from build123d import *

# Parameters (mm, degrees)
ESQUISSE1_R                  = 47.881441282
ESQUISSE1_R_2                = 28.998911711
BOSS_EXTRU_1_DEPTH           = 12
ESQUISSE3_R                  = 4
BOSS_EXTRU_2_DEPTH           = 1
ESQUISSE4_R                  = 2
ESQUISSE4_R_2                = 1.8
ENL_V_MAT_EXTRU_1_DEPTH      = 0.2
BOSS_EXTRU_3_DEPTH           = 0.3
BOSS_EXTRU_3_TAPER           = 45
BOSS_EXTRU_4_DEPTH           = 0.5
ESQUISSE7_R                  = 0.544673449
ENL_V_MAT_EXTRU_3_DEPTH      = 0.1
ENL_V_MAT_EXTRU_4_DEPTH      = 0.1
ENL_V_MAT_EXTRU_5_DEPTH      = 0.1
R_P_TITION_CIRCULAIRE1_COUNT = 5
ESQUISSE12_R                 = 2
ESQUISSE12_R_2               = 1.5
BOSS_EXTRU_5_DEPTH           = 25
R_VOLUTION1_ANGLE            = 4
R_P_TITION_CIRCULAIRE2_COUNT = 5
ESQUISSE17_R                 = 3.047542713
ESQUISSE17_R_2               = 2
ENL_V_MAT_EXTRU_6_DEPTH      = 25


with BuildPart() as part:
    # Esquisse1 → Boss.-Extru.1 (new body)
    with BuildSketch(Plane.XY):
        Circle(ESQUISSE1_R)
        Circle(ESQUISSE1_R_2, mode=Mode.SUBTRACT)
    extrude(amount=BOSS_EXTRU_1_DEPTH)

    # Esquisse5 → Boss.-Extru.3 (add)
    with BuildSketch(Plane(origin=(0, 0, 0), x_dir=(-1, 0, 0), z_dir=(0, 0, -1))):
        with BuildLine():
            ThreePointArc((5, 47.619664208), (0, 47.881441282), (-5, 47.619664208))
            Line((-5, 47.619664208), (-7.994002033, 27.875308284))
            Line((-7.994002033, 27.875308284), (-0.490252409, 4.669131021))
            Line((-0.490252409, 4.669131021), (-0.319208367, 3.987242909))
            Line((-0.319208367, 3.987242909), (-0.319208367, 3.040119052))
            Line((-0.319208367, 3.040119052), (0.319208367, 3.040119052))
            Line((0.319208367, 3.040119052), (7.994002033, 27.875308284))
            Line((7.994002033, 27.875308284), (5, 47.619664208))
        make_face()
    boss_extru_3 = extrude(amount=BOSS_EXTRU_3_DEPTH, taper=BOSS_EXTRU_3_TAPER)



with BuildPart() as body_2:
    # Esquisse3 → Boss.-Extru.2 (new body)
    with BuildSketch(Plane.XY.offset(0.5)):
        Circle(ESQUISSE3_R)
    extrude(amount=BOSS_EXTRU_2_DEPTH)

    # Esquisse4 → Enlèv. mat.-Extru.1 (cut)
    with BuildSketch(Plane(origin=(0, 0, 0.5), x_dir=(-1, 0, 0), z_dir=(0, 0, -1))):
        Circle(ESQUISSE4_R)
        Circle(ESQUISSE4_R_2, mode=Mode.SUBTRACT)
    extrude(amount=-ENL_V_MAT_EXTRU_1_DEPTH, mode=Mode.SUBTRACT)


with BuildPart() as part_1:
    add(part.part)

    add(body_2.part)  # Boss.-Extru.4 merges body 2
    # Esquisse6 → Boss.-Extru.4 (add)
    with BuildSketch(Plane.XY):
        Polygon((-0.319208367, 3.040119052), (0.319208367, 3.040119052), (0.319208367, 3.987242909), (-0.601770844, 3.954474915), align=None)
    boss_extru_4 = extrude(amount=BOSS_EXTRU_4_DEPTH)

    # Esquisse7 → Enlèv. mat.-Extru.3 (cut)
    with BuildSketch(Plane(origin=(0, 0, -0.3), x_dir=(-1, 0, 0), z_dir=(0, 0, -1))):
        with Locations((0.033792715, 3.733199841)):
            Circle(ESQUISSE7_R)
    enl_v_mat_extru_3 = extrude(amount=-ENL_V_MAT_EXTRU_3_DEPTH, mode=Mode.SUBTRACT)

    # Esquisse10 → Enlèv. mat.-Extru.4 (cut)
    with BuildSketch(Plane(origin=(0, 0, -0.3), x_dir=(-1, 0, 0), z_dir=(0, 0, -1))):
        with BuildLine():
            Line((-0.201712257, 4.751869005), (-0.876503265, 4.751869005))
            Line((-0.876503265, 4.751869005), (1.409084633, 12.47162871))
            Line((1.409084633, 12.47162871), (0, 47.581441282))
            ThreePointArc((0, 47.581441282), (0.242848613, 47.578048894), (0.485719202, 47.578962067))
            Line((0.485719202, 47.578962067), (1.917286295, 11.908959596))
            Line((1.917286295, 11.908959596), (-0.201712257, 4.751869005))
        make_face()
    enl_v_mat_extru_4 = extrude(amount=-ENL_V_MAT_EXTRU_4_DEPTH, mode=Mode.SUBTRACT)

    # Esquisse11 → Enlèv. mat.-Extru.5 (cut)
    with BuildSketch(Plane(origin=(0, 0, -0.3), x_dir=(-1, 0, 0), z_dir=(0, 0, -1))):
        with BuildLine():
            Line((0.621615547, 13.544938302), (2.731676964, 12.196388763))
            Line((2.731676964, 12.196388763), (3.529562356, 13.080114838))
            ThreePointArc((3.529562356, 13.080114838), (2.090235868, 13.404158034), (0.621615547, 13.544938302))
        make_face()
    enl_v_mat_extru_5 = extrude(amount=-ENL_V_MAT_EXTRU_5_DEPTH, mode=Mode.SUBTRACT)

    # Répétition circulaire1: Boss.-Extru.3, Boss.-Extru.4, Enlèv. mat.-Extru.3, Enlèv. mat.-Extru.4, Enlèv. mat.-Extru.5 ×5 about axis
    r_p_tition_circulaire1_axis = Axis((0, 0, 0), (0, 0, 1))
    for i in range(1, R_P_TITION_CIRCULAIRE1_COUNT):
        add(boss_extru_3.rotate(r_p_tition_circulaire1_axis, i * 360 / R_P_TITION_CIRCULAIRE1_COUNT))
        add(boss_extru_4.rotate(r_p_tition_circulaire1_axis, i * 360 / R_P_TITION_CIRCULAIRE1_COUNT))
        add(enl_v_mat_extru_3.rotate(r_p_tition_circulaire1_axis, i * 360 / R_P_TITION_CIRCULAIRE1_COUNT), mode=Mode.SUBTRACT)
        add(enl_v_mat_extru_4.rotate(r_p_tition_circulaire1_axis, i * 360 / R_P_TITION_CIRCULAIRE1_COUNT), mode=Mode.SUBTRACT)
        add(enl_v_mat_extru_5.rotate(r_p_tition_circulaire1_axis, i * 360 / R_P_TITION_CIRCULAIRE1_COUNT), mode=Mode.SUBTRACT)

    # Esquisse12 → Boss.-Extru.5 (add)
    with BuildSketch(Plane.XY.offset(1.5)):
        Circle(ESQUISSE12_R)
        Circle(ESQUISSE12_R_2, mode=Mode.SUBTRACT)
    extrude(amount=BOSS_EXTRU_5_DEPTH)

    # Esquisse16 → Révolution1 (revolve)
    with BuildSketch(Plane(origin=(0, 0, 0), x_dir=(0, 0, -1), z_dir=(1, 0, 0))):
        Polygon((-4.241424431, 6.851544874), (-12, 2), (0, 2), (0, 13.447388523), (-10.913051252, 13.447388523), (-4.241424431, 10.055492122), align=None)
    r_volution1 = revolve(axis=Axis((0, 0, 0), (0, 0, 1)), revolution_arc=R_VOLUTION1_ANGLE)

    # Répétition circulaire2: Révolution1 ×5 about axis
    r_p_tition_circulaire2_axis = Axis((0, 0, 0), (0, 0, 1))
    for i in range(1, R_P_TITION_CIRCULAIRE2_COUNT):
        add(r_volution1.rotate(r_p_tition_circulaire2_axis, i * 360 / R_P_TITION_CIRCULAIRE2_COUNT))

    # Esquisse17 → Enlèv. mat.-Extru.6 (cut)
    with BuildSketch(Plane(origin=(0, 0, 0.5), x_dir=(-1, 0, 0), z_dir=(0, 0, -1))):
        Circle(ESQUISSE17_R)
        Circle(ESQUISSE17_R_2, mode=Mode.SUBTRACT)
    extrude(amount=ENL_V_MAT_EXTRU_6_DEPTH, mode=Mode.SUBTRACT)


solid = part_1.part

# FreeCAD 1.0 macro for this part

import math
import FreeCAD as App
import Part
import Sketcher
Q = App.Units.Quantity

doc = App.newDocument("Part")
body = doc.addObject("PartDesign::Body", "Body")

# Sketch on XY plane
sketch1 = doc.addObject("Sketcher::SketchObject", "Sketch")
body.addObject(sketch1)
sketch1.AttachmentSupport = (doc.XY_Plane, [""])
sketch1.MapMode = "FlatFace"
sketch1.addGeometry(Part.Circle(App.Vector(0, 0, 0), App.Vector(0, 0, 1), 47.881441), False)
sketch1.addGeometry(Part.Circle(App.Vector(0, 0, 0), App.Vector(0, 0, 1), 28.998912), False)
sketch1.addConstraint(Sketcher.Constraint("Coincident", 0, 3, -1, 1))
sketch1.addConstraint(Sketcher.Constraint("Coincident", 1, 3, -1, 1))
sketch1.addConstraint(Sketcher.Constraint("Diameter", 0, Q("95.762883 mm")))
sketch1.addConstraint(Sketcher.Constraint("Diameter", 1, Q("57.997823 mm")))
pad1 = doc.addObject("PartDesign::Pad", "Pad")
body.addObject(pad1)
pad1.Profile = sketch1
pad1.Length = 12

# Sketch on XY plane
sketch2 = doc.addObject("Sketcher::SketchObject", "Sketch001")
body.addObject(sketch2)
sketch2.AttachmentSupport = (doc.XY_Plane, [""])
sketch2.MapMode = "FlatFace"
sketch2.addGeometry(Part.ArcOfCircle(Part.Circle(App.Vector(0, 0, 0), App.Vector(0, 0, 1), 47.881441), math.radians(84.005984), math.radians(95.994016)), False)
sketch2.addGeometry(Part.LineSegment(App.Vector(5, 47.619664, 0), App.Vector(7.994002, 27.875308, 0)), False)
sketch2.addGeometry(Part.LineSegment(App.Vector(7.994002, 27.875308, 0), App.Vector(0.490252, 4.669131, 0)), False)
sketch2.addGeometry(Part.LineSegment(App.Vector(0.490252, 4.669131, 0), App.Vector(0.319208, 3.987243, 0)), False)
sketch2.addGeometry(Part.LineSegment(App.Vector(0.319208, 3.987243, 0), App.Vector(0.319208, 3.040119, 0)), False)
sketch2.addGeometry(Part.LineSegment(App.Vector(0.319208, 3.040119, 0), App.Vector(-0.319208, 3.040119, 0)), False)
sketch2.addGeometry(Part.LineSegment(App.Vector(-0.319208, 3.040119, 0), App.Vector(-7.994002, 27.875308, 0)), False)
sketch2.addGeometry(Part.LineSegment(App.Vector(-7.994002, 27.875308, 0), App.Vector(-5, 47.619664, 0)), False)
sketch2.addConstraint(Sketcher.Constraint("Coincident", 0, 1, 1, 1))
sketch2.addConstraint(Sketcher.Constraint("Coincident", 1, 2, 2, 1))
sketch2.addConstraint(Sketcher.Constraint("Coincident", 2, 2, 3, 1))
sketch2.addConstraint(Sketcher.Constraint("Coincident", 3, 2, 4, 1))
sketch2.addConstraint(Sketcher.Constraint("Coincident", 4, 2, 5, 1))
sketch2.addConstraint(Sketcher.Constraint("Coincident", 5, 2, 6, 1))
sketch2.addConstraint(Sketcher.Constraint("Coincident", 6, 2, 7, 1))
sketch2.addConstraint(Sketcher.Constraint("Coincident", 7, 2, 0, 2))
sketch2.addConstraint(Sketcher.Constraint("Vertical", 4))
sketch2.addConstraint(Sketcher.Constraint("Horizontal", 5))
sketch2.addConstraint(Sketcher.Constraint("Coincident", 0, 3, -1, 1))
sketch2.addConstraint(Sketcher.Constraint("Symmetric", 1, 2, 6, 2, -2))
sketch2.addConstraint(Sketcher.Constraint("Horizontal", 0, 1, 7, 2))
sketch2.addConstraint(Sketcher.Constraint("DistanceX", -1, 1, 0, 1, Q("5 mm")))
sketch2.addConstraint(Sketcher.Constraint("Radius", 0, Q("47.881441 mm")))
sketch2.addConstraint(Sketcher.Constraint("Distance", 1, Q("19.970069 mm")))
sketch2.addConstraint(Sketcher.Constraint("Distance", 6, Q("25.99402 mm")))
sketch2.addConstraint(Sketcher.Constraint("DistanceX", 5, 2, 5, 1, Q("0.638417 mm")))
sketch2.addConstraint(Sketcher.Constraint("DistanceY", 4, 2, 4, 1, Q("0.947124 mm")))
sketch2.addConstraint(Sketcher.Constraint("DistanceY", -1, 1, 1, 2, Q("27.875308 mm")))
sketch2.addConstraint(Sketcher.Constraint("DistanceY", -1, 1, 2, 2, Q("4.669131 mm")))
sketch2.addConstraint(Sketcher.Constraint("DistanceX", -1, 1, 3, 2, Q("0.319208 mm")))
sketch2.addConstraint(Sketcher.Constraint("DistanceX", 2, 2, 1, 2, Q("7.50375 mm")))
pad2 = doc.addObject("PartDesign::Pad", "Pad001")
body.addObject(pad2)
pad2.Profile = sketch2
pad2.Length = 0.3
pad2.Reversed = True
pad2.TaperAngle = -45
body2 = doc.addObject("PartDesign::Body", "Body001")

# Sketch on XY plane
sketch3 = doc.addObject("Sketcher::SketchObject", "Sketch002")
body2.addObject(sketch3)
sketch3.AttachmentSupport = (doc.getObject("XY_Plane001"), [""])
sketch3.MapMode = "FlatFace"
sketch3.AttachmentOffset = App.Placement(App.Vector(0, 0, 0.5), App.Rotation())
sketch3.addGeometry(Part.Circle(App.Vector(0, 0, 0), App.Vector(0, 0, 1), 4), False)
sketch3.addConstraint(Sketcher.Constraint("Coincident", 0, 3, -1, 1))
sketch3.addConstraint(Sketcher.Constraint("Diameter", 0, Q("8 mm")))
pad3 = doc.addObject("PartDesign::Pad", "Pad002")
body2.addObject(pad3)
pad3.Profile = sketch3
pad3.Length = 1

# Sketch on XY plane
sketch4 = doc.addObject("Sketcher::SketchObject", "Sketch003")
body2.addObject(sketch4)
sketch4.AttachmentSupport = (doc.getObject("XY_Plane001"), [""])
sketch4.MapMode = "FlatFace"
sketch4.AttachmentOffset = App.Placement(App.Vector(0, 0, 0.5), App.Rotation())
sketch4.addGeometry(Part.Circle(App.Vector(0, 0, 0), App.Vector(0, 0, 1), 2), False)
sketch4.addGeometry(Part.Circle(App.Vector(0, 0, 0), App.Vector(0, 0, 1), 1.8), False)
sketch4.addConstraint(Sketcher.Constraint("Coincident", 0, 3, -1, 1))
sketch4.addConstraint(Sketcher.Constraint("Coincident", 1, 3, -1, 1))
sketch4.addConstraint(Sketcher.Constraint("Diameter", 0, Q("4 mm")))
sketch4.addConstraint(Sketcher.Constraint("Diameter", 1, Q("3.6 mm")))
pocket1 = doc.addObject("PartDesign::Pocket", "Pocket")
body2.addObject(pocket1)
pocket1.Profile = sketch4
pocket1.Length = 0.2
pocket1.Reversed = True
body.AllowCompound = True
doc.recompute()

boolean = doc.addObject("PartDesign::Boolean", "Boolean")
body.addObject(boolean)
boolean.Type = "Fuse"
boolean.addObjects([body2])

# Sketch on XY plane
sketch5 = doc.addObject("Sketcher::SketchObject", "Sketch004")
body.addObject(sketch5)
sketch5.AttachmentSupport = (doc.XY_Plane, [""])
sketch5.MapMode = "FlatFace"
sketch5.addGeometry(Part.LineSegment(App.Vector(-0.319208, 3.040119, 0), App.Vector(0.319208, 3.040119, 0)), False)
sketch5.addGeometry(Part.LineSegment(App.Vector(0.319208, 3.040119, 0), App.Vector(0.319208, 3.987243, 0)), False)
sketch5.addGeometry(Part.LineSegment(App.Vector(0.319208, 3.987243, 0), App.Vector(-0.601771, 3.954475, 0)), False)
sketch5.addGeometry(Part.LineSegment(App.Vector(-0.601771, 3.954475, 0), App.Vector(-0.319208, 3.040119, 0)), False)
sketch5.addConstraint(Sketcher.Constraint("Coincident", 0, 2, 1, 1))
sketch5.addConstraint(Sketcher.Constraint("Coincident", 1, 2, 2, 1))
sketch5.addConstraint(Sketcher.Constraint("Coincident", 2, 2, 3, 1))
sketch5.addConstraint(Sketcher.Constraint("Coincident", 3, 2, 0, 1))
sketch5.addConstraint(Sketcher.Constraint("Horizontal", 0))
sketch5.addConstraint(Sketcher.Constraint("Vertical", 1))
sketch5.addConstraint(Sketcher.Constraint("Distance", 2, Q("0.921562 mm")))
sketch5.addConstraint(Sketcher.Constraint("Distance", 3, Q("0.95702 mm")))
sketch5.addConstraint(Sketcher.Constraint("DistanceX", 0, 1, 0, 2, Q("0.638417 mm")))
sketch5.addConstraint(Sketcher.Constraint("DistanceY", 1, 1, 1, 2, Q("0.947124 mm")))
sketch5.addConstraint(Sketcher.Constraint("DistanceX", -1, 1, 0, 2, Q("0.319208 mm")))
sketch5.addConstraint(Sketcher.Constraint("DistanceY", -1, 1, 0, 2, Q("3.040119 mm")))
pad4 = doc.addObject("PartDesign::Pad", "Pad003")
body.addObject(pad4)
pad4.Profile = sketch5
pad4.Length = 0.5

# Sketch on XY plane
sketch6 = doc.addObject("Sketcher::SketchObject", "Sketch005")
body.addObject(sketch6)
sketch6.AttachmentSupport = (doc.XY_Plane, [""])
sketch6.MapMode = "FlatFace"
sketch6.AttachmentOffset = App.Placement(App.Vector(0, 0, -0.3), App.Rotation())
sketch6.addGeometry(Part.Circle(App.Vector(-0.033793, 3.7332, 0), App.Vector(0, 0, 1), 0.544673), False)
sketch6.addConstraint(Sketcher.Constraint("Diameter", 0, Q("1.089347 mm")))
sketch6.addConstraint(Sketcher.Constraint("DistanceY", -1, 1, 0, 3, Q("3.7332 mm")))
sketch6.addConstraint(Sketcher.Constraint("DistanceX", 0, 3, -1, 1, Q("0.033793 mm")))
pocket2 = doc.addObject("PartDesign::Pocket", "Pocket001")
body.addObject(pocket2)
pocket2.Profile = sketch6
pocket2.Length = 0.1
pocket2.Reversed = True

# Sketch on XY plane
sketch7 = doc.addObject("Sketcher::SketchObject", "Sketch006")
body.addObject(sketch7)
sketch7.AttachmentSupport = (doc.XY_Plane, [""])
sketch7.MapMode = "FlatFace"
sketch7.AttachmentOffset = App.Placement(App.Vector(0, 0, -0.3), App.Rotation())
sketch7.addGeometry(Part.LineSegment(App.Vector(0.876503, 4.751869, 0), App.Vector(0.201712, 4.751869, 0)), False)
sketch7.addGeometry(Part.LineSegment(App.Vector(0.201712, 4.751869, 0), App.Vector(-1.917286, 11.90896, 0)), False)
sketch7.addGeometry(Part.LineSegment(App.Vector(-1.917286, 11.90896, 0), App.Vector(-0.485719, 47.578962, 0)), False)
sketch7.addGeometry(Part.ArcOfCircle(Part.Circle(App.Vector(-0.312775, 61.277871, 0), App.Vector(0, 0, 1), 13.700001), math.radians(-90.7233), math.radians(-88.691805)), False)
sketch7.addGeometry(Part.LineSegment(App.Vector(0, 47.581441, 0), App.Vector(-1.409085, 12.471629, 0)), False)
sketch7.addGeometry(Part.LineSegment(App.Vector(-1.409085, 12.471629, 0), App.Vector(0.876503, 4.751869, 0)), False)
sketch7.addConstraint(Sketcher.Constraint("Coincident", 0, 2, 1, 1))
sketch7.addConstraint(Sketcher.Constraint("Coincident", 1, 2, 2, 1))
sketch7.addConstraint(Sketcher.Constraint("Coincident", 2, 2, 3, 1))
sketch7.addConstraint(Sketcher.Constraint("Coincident", 3, 2, 4, 1))
sketch7.addConstraint(Sketcher.Constraint("Coincident", 4, 2, 5, 1))
sketch7.addConstraint(Sketcher.Constraint("Coincident", 5, 2, 0, 1))
sketch7.addConstraint(Sketcher.Constraint("Horizontal", 0))
sketch7.addConstraint(Sketcher.Constraint("PointOnObject", 3, 2, -2))
sketch7.addConstraint(Sketcher.Constraint("Radius", 3, Q("13.700001 mm")))
sketch7.addConstraint(Sketcher.Constraint("Distance", 5, Q("8.051 mm")))
sketch7.addConstraint(Sketcher.Constraint("DistanceX", 1, 2, 0, 2, Q("2.118999 mm")))
sketch7.addConstraint(Sketcher.Constraint("DistanceX", 0, 2, 0, 1, Q("0.674791 mm")))
sketch7.addConstraint(Sketcher.Constraint("DistanceX", 1, 2, 4, 2, Q("0.508202 mm")))
sketch7.addConstraint(Sketcher.Constraint("DistanceY", -1, 1, 3, 3, Q("61.277871 mm")))
sketch7.addConstraint(Sketcher.Constraint("DistanceY", -1, 1, 0, 2, Q("4.751869 mm")))
sketch7.addConstraint(Sketcher.Constraint("DistanceY", -1, 1, 1, 2, Q("11.90896 mm")))
sketch7.addConstraint(Sketcher.Constraint("DistanceX", 2, 2, -1, 1, Q("0.485719 mm")))
sketch7.addConstraint(Sketcher.Constraint("DistanceY", -1, 1, 3, 2, Q("47.581441 mm")))
sketch7.addConstraint(Sketcher.Constraint("DistanceX", 1, 2, 3, 3, Q("1.604511 mm")))
pocket3 = doc.addObject("PartDesign::Pocket", "Pocket002")
body.addObject(pocket3)
pocket3.Profile = sketch7
pocket3.Length = 0.1
pocket3.Reversed = True

# Sketch on XY plane
sketch8 = doc.addObject("Sketcher::SketchObject", "Sketch007")
body.addObject(sketch8)
sketch8.AttachmentSupport = (doc.XY_Plane, [""])
sketch8.MapMode = "FlatFace"
sketch8.AttachmentOffset = App.Placement(App.Vector(0, 0, -0.3), App.Rotation())
sketch8.addGeometry(Part.LineSegment(App.Vector(-0.621616, 13.544938, 0), App.Vector(-2.731677, 12.196389, 0)), False)
sketch8.addGeometry(Part.LineSegment(App.Vector(-2.731677, 12.196389, 0), App.Vector(-3.529562, 13.080115, 0)), False)
sketch8.addGeometry(Part.ArcOfCircle(Part.Circle(App.Vector(-0.239002, 1.822792, 0), App.Vector(0, 0, 1), 11.728389), math.radians(91.869485), math.radians(106.293854)), False)
sketch8.addConstraint(Sketcher.Constraint("Coincident", 0, 2, 1, 1))
sketch8.addConstraint(Sketcher.Constraint("Coincident", 1, 2, 2, 2))
sketch8.addConstraint(Sketcher.Constraint("Coincident", 2, 1, 0, 1))
sketch8.addConstraint(Sketcher.Constraint("Radius", 2, Q("11.728389 mm")))
sketch8.addConstraint(Sketcher.Constraint("DistanceX", 2, 3, -1, 1, Q("0.239002 mm")))
sketch8.addConstraint(Sketcher.Constraint("DistanceY", -1, 1, 0, 2, Q("12.196389 mm")))
sketch8.addConstraint(Sketcher.Constraint("DistanceY", -1, 1, 2, 1, Q("13.544938 mm")))
sketch8.addConstraint(Sketcher.Constraint("DistanceX", 1, 2, 2, 3, Q("3.290561 mm")))
sketch8.addConstraint(Sketcher.Constraint("DistanceX", 0, 2, 2, 1, Q("2.110061 mm")))
sketch8.addConstraint(Sketcher.Constraint("Distance", 1, Q("1.190627 mm")))
pocket4 = doc.addObject("PartDesign::Pocket", "Pocket003")
body.addObject(pocket4)
pocket4.Profile = sketch8
pocket4.Length = 0.1
pocket4.Reversed = True
doc.recompute()

polarpattern = doc.addObject("PartDesign::PolarPattern", "PolarPattern")
body.addObject(polarpattern)
polarpattern.Originals = [pad2, pad4, pocket2, pocket3, pocket4]
polarpattern.Axis = (doc.Z_Axis, [""])
polarpattern.Angle = 360
polarpattern.Occurrences = 5
body.Tip = polarpattern

# Sketch on XY plane
sketch9 = doc.addObject("Sketcher::SketchObject", "Sketch008")
body.addObject(sketch9)
sketch9.AttachmentSupport = (doc.XY_Plane, [""])
sketch9.MapMode = "FlatFace"
sketch9.AttachmentOffset = App.Placement(App.Vector(0, 0, 1.5), App.Rotation())
sketch9.addGeometry(Part.Circle(App.Vector(0, 0, 0), App.Vector(0, 0, 1), 2), False)
sketch9.addGeometry(Part.Circle(App.Vector(0, 0, 0), App.Vector(0, 0, 1), 1.5), False)
sketch9.addConstraint(Sketcher.Constraint("Coincident", 0, 3, -1, 1))
sketch9.addConstraint(Sketcher.Constraint("Coincident", 1, 3, -1, 1))
sketch9.addConstraint(Sketcher.Constraint("Diameter", 0, Q("4 mm")))
sketch9.addConstraint(Sketcher.Constraint("Diameter", 1, Q("3 mm")))
pad5 = doc.addObject("PartDesign::Pad", "Pad004")
body.addObject(pad5)
pad5.Profile = sketch9
pad5.Length = 25

# Sketch on YZ plane
sketch10 = doc.addObject("Sketcher::SketchObject", "Sketch009")
body.addObject(sketch10)
sketch10.AttachmentSupport = (doc.YZ_Plane, [""])
sketch10.MapMode = "FlatFace"
sketch10.addGeometry(Part.LineSegment(App.Vector(6.851545, 4.241424, 0), App.Vector(2, 12, 0)), False)
sketch10.addGeometry(Part.LineSegment(App.Vector(2, 12, 0), App.Vector(2, 0, 0)), False)
sketch10.addGeometry(Part.LineSegment(App.Vector(2, 0, 0), App.Vector(13.447389, 0, 0)), False)
sketch10.addGeometry(Part.LineSegment(App.Vector(13.447389, 0, 0), App.Vector(13.447389, 10.913051, 0)), False)
sketch10.addGeometry(Part.LineSegment(App.Vector(13.447389, 10.913051, 0), App.Vector(10.055492, 4.241424, 0)), False)
sketch10.addGeometry(Part.LineSegment(App.Vector(10.055492, 4.241424, 0), App.Vector(6.851545, 4.241424, 0)), False)
sketch10.addConstraint(Sketcher.Constraint("Coincident", 0, 2, 1, 1))
sketch10.addConstraint(Sketcher.Constraint("Coincident", 1, 2, 2, 1))
sketch10.addConstraint(Sketcher.Constraint("Coincident", 2, 2, 3, 1))
sketch10.addConstraint(Sketcher.Constraint("Coincident", 3, 2, 4, 1))
sketch10.addConstraint(Sketcher.Constraint("Coincident", 4, 2, 5, 1))
sketch10.addConstraint(Sketcher.Constraint("Coincident", 5, 2, 0, 1))
sketch10.addConstraint(Sketcher.Constraint("Vertical", 1))
sketch10.addConstraint(Sketcher.Constraint("Horizontal", 2))
sketch10.addConstraint(Sketcher.Constraint("Vertical", 3))
sketch10.addConstraint(Sketcher.Constraint("Horizontal", 5))
sketch10.addConstraint(Sketcher.Constraint("PointOnObject", 1, 2, -1))
sketch10.addConstraint(Sketcher.Constraint("DistanceY", 1, 2, 1, 1, Q("12 mm")))
sketch10.addConstraint(Sketcher.Constraint("DistanceX", -1, 1, 0, 2, Q("2 mm")))
sketch10.addConstraint(Sketcher.Constraint("DistanceX", 2, 1, 2, 2, Q("11.447389 mm")))
sketch10.addConstraint(Sketcher.Constraint("DistanceY", 3, 1, 3, 2, Q("10.913051 mm")))
sketch10.addConstraint(Sketcher.Constraint("DistanceX", 5, 2, 5, 1, Q("3.203947 mm")))
sketch10.addConstraint(Sketcher.Constraint("Distance", 0, Q("9.150573 mm")))
sketch10.addConstraint(Sketcher.Constraint("Distance", 4, Q("7.484355 mm")))
revolution = doc.addObject("PartDesign::Revolution", "Revolution")
body.addObject(revolution)
revolution.Profile = sketch10
revolution.ReferenceAxis = (sketch10, ["V_Axis"])
revolution.Angle = 4
doc.recompute()

polarpattern2 = doc.addObject("PartDesign::PolarPattern", "PolarPattern001")
body.addObject(polarpattern2)
polarpattern2.Originals = [revolution]
polarpattern2.Axis = (doc.Z_Axis, [""])
polarpattern2.Angle = 360
polarpattern2.Occurrences = 5
body.Tip = polarpattern2

# Sketch on XY plane
sketch11 = doc.addObject("Sketcher::SketchObject", "Sketch010")
body.addObject(sketch11)
sketch11.AttachmentSupport = (doc.XY_Plane, [""])
sketch11.MapMode = "FlatFace"
sketch11.AttachmentOffset = App.Placement(App.Vector(0, 0, 0.5), App.Rotation())
sketch11.addGeometry(Part.Circle(App.Vector(0, 0, 0), App.Vector(0, 0, 1), 3.047543), False)
sketch11.addGeometry(Part.Circle(App.Vector(0, 0, 0), App.Vector(0, 0, 1), 2), False)
sketch11.addConstraint(Sketcher.Constraint("Coincident", 0, 3, -1, 1))
sketch11.addConstraint(Sketcher.Constraint("Coincident", 1, 3, -1, 1))
sketch11.addConstraint(Sketcher.Constraint("Diameter", 1, Q("4 mm")))
sketch11.addConstraint(Sketcher.Constraint("Diameter", 0, Q("6.095085 mm")))
pocket5 = doc.addObject("PartDesign::Pocket", "Pocket004")
body.addObject(pocket5)
pocket5.Profile = sketch11
pocket5.Length = 25

doc.recompute()
